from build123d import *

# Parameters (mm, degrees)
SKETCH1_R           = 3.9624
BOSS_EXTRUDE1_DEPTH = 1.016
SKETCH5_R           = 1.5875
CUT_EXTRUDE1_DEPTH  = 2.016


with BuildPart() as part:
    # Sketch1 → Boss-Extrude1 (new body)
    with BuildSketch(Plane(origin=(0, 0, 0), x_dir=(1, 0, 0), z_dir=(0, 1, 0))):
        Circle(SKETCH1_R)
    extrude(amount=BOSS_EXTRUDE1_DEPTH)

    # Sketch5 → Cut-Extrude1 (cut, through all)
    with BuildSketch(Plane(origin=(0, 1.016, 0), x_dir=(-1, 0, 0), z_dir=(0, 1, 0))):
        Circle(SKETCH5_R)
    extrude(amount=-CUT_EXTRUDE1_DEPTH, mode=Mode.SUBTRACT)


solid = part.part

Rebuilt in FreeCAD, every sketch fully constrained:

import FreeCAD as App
import Part
import Sketcher
Q = App.Units.Quantity

doc = App.newDocument("Part")
body = doc.addObject("PartDesign::Body", "Body")

sketch1 = doc.addObject("Sketcher::SketchObject", "Sketch")
body.addObject(sketch1)
sketch1.AttachmentSupport = (doc.XZ_Plane, [""])
sketch1.MapMode = "FlatFace"
sketch1.addGeometry(Part.Circle(App.Vector(0, 0, 0), App.Vector(0, 0, 1), 3.9624), False)
sketch1.addConstraint([
    Sketcher.Constraint("Coincident", 0, 3, -1, 1),
    Sketcher.Constraint("Diameter", 0, Q("0.312 in")),
])
pad1 = doc.addObject("PartDesign::Pad", "Pad")
body.addObject(pad1)
pad1.Profile = sketch1
pad1.Length = Q("0.04 in")
pad1.Reversed = True

sketch2 = doc.addObject("Sketcher::SketchObject", "Sketch001")
body.addObject(sketch2)
sketch2.AttachmentSupport = (doc.XZ_Plane, [""])
sketch2.MapMode = "FlatFace"
sketch2.AttachmentOffset = App.Placement(App.Vector(0, 0, -0.04 * 25.4), App.Rotation())
sketch2.addGeometry(Part.Circle(App.Vector(0, 0, 0), App.Vector(0, 0, 1), 1.5875), False)
sketch2.addConstraint([
    Sketcher.Constraint("Coincident", 0, 3, -1, 1),
    Sketcher.Constraint("Diameter", 0, Q("0.125 in")),
])
pocket1 = doc.addObject("PartDesign::Pocket", "Pocket")
body.addObject(pocket1)
pocket1.Profile = sketch2
pocket1.Type = "ThroughAll"
pocket1.Reversed = True

doc.recompute()
